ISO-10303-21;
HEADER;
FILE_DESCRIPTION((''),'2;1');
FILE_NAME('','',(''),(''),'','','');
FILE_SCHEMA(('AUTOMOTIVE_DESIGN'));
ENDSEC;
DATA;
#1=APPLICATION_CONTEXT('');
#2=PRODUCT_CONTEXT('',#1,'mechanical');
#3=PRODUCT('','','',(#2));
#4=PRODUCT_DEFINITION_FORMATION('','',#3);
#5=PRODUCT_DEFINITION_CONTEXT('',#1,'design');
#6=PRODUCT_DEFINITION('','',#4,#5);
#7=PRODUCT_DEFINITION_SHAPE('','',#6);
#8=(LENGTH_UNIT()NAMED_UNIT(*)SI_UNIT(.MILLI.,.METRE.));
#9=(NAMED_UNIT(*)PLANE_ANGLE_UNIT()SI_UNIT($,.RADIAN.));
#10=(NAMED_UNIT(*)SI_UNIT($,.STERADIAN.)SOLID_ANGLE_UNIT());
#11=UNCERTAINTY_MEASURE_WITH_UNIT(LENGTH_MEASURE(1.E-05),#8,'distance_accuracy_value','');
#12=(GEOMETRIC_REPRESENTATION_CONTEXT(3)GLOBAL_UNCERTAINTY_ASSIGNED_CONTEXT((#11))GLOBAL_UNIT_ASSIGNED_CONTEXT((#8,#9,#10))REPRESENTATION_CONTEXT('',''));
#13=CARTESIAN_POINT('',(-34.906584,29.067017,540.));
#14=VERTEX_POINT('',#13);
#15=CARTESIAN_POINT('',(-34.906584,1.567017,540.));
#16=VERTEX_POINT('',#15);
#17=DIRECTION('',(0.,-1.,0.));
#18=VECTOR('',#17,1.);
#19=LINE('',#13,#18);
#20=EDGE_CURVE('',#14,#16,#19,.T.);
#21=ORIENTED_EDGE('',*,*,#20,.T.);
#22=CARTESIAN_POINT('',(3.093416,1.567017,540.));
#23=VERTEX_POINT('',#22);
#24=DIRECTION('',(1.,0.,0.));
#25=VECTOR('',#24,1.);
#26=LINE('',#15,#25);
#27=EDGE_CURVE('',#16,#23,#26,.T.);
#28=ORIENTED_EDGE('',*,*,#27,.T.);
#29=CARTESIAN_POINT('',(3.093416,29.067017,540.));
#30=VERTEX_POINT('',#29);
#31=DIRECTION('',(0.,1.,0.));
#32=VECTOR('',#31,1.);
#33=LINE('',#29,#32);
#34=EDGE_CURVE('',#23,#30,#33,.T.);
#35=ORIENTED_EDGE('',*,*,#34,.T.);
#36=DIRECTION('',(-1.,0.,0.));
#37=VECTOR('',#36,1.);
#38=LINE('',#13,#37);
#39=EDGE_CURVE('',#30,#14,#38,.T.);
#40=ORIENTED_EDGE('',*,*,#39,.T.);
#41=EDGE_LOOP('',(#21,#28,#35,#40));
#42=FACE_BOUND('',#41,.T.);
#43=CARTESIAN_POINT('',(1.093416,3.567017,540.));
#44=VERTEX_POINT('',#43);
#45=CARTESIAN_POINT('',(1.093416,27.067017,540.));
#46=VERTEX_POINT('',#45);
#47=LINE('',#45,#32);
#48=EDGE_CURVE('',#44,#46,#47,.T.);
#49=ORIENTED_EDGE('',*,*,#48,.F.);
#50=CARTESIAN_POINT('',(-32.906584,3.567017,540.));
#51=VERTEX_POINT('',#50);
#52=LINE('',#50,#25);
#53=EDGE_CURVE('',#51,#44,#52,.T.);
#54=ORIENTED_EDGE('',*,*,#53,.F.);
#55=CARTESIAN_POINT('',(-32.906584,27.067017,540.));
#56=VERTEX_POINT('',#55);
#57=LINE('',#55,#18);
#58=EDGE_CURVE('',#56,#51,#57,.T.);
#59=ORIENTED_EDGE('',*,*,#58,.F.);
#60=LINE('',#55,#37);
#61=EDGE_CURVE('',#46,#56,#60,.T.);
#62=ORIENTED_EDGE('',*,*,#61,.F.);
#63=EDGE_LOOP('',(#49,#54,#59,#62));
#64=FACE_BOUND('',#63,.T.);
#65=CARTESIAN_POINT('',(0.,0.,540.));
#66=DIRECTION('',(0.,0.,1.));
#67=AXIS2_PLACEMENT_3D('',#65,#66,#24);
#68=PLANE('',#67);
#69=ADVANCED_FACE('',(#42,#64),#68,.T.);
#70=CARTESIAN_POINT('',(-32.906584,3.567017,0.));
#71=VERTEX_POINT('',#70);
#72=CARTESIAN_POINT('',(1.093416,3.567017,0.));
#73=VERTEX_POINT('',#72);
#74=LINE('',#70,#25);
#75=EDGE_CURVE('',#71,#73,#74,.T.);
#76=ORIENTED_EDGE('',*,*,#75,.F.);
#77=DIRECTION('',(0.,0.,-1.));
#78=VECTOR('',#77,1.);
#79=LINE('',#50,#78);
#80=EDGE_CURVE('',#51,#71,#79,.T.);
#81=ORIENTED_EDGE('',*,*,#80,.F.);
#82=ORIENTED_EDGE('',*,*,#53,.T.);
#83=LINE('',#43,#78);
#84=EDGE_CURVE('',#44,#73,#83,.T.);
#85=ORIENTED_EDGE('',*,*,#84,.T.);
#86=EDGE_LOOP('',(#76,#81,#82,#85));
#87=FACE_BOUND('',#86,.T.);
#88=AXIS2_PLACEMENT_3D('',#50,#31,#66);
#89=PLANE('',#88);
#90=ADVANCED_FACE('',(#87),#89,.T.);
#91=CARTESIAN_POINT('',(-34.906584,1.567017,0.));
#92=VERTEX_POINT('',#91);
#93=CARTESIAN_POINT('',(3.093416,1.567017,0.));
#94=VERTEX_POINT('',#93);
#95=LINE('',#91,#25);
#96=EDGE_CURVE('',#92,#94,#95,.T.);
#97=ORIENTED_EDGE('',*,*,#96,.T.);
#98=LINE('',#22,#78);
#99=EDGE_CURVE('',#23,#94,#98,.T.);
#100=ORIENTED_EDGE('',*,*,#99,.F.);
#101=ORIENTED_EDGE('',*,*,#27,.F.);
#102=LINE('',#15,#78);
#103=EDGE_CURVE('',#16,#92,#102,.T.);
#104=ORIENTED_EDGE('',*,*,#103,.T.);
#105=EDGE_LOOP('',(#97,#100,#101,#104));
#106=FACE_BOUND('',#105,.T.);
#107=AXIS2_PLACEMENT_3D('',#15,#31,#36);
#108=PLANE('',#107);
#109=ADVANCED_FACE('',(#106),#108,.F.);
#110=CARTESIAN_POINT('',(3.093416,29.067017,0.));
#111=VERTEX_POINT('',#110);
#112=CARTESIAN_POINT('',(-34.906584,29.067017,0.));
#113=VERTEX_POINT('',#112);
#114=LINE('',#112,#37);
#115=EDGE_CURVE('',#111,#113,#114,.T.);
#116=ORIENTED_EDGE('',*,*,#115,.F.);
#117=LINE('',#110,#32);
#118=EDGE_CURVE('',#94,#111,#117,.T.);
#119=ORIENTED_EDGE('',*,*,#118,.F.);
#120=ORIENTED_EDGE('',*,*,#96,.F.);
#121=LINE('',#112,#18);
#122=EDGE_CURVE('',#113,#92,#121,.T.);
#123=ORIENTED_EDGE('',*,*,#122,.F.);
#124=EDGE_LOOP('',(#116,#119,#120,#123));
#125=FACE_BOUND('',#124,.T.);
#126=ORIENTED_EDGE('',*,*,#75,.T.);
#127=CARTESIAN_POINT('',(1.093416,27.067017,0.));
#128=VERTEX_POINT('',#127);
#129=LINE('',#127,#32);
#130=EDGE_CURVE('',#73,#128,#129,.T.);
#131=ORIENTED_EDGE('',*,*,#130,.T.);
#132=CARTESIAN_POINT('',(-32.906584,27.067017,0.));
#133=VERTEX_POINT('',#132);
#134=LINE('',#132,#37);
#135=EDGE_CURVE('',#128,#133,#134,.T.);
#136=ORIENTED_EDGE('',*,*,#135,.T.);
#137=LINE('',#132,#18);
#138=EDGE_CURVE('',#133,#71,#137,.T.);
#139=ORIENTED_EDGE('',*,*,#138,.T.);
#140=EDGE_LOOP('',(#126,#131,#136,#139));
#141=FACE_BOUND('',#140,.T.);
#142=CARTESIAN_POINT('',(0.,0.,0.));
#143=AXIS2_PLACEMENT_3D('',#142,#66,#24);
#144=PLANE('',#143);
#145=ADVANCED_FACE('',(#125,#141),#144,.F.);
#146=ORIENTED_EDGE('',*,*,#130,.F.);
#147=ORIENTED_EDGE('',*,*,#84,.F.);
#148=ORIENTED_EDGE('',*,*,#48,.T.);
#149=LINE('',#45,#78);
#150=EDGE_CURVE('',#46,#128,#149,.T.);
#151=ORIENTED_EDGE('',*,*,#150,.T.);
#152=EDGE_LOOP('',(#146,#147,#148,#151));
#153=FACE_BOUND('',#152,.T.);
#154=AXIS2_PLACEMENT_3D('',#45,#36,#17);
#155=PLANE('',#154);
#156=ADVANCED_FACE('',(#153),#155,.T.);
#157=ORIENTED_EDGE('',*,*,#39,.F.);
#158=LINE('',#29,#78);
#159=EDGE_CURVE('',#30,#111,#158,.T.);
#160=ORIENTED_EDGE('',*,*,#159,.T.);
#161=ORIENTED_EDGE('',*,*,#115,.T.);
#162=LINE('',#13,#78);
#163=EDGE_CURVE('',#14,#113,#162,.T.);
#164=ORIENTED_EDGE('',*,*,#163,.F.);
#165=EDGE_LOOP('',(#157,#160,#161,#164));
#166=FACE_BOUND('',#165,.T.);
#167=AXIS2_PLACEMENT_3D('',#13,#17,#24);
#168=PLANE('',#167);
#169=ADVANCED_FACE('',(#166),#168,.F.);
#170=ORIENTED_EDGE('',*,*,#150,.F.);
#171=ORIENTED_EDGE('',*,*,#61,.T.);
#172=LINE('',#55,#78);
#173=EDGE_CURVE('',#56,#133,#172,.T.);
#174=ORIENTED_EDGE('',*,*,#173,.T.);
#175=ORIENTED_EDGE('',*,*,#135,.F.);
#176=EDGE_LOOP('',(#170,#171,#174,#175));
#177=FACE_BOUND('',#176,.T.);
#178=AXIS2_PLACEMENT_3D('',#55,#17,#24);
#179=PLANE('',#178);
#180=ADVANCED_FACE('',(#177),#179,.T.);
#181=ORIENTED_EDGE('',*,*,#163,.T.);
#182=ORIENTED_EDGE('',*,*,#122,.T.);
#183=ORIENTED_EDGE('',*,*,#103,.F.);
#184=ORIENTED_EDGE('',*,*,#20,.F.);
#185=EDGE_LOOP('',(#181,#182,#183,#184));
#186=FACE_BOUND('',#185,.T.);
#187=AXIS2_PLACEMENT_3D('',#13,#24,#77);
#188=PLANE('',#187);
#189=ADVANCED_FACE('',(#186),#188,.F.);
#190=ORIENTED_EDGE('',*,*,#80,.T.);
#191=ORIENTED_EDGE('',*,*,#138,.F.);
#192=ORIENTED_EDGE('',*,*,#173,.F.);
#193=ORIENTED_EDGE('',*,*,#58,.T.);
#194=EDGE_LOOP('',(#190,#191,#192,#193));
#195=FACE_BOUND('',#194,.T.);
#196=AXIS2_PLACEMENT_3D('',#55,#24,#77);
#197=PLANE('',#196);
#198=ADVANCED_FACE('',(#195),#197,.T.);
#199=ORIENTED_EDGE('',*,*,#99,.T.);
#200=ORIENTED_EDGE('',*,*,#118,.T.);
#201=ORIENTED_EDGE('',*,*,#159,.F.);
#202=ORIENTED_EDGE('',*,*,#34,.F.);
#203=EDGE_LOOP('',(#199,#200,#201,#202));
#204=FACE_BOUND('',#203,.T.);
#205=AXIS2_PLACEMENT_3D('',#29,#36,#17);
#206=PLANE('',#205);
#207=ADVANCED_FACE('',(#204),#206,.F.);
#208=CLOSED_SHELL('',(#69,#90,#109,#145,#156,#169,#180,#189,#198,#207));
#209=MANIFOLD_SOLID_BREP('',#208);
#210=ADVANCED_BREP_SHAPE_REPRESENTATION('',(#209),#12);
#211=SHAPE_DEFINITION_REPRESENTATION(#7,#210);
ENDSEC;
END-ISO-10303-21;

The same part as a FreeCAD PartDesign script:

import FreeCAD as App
import Part
import Sketcher
from FreeCAD import Vector

doc = App.newDocument("Part")
params = doc.addObject("Spreadsheet::Sheet", "Params")
for row, (alias, value) in enumerate([
    ("sketch1_width", "38 mm"),
    ("sketch1_width2", "34 mm"),
    ("sketch1_height", "27.5 mm"),
    ("sketch1_height2", "23.5 mm"),
    ("pad1_length", "540 mm"),
], start=1):
    params.set(f"A{row}", alias)
    params.set(f"B{row}", "=" + value)
    params.setAlias(f"B{row}", alias)

body = doc.addObject("PartDesign::Body", "Body")

# Sketch on XY plane
sketch1 = body.newObject("Sketcher::SketchObject", "Sketch")
sketch1.AttachmentSupport = (doc.getObject("XY_Plane"), [""])
sketch1.MapMode = "FlatFace"
sketch1.addGeometry(Part.LineSegment(Vector(-34.906584, 29.067017, 0), Vector(-34.906584, 1.567017, 0)), False)
sketch1.addGeometry(Part.LineSegment(Vector(-34.906584, 1.567017, 0), Vector(3.093416, 1.567017, 0)), False)
sketch1.addGeometry(Part.LineSegment(Vector(3.093416, 1.567017, 0), Vector(3.093416, 29.067017, 0)), False)
sketch1.addGeometry(Part.LineSegment(Vector(3.093416, 29.067017, 0), Vector(-34.906584, 29.067017, 0)), False)
sketch1.addGeometry(Part.LineSegment(Vector(1.093416, 3.567017, 0), Vector(-32.906584, 3.567017, 0)), False)
sketch1.addGeometry(Part.LineSegment(Vector(-32.906584, 3.567017, 0), Vector(-32.906584, 27.067017, 0)), False)
sketch1.addGeometry(Part.LineSegment(Vector(-32.906584, 27.067017, 0), Vector(1.093416, 27.067017, 0)), False)
sketch1.addGeometry(Part.LineSegment(Vector(1.093416, 27.067017, 0), Vector(1.093416, 3.567017, 0)), False)
sketch1.addConstraint(Sketcher.Constraint("Coincident", 0, 2, 1, 1))
sketch1.addConstraint(Sketcher.Constraint("Coincident", 1, 2, 2, 1))
sketch1.addConstraint(Sketcher.Constraint("Coincident", 2, 2, 3, 1))
sketch1.addConstraint(Sketcher.Constraint("Coincident", 3, 2, 0, 1))
sketch1.addConstraint(Sketcher.Constraint("Coincident", 4, 2, 5, 1))
sketch1.addConstraint(Sketcher.Constraint("Coincident", 5, 2, 6, 1))
sketch1.addConstraint(Sketcher.Constraint("Coincident", 6, 2, 7, 1))
sketch1.addConstraint(Sketcher.Constraint("Coincident", 7, 2, 4, 1))
sketch1.addConstraint(Sketcher.Constraint("Vertical", 0))
sketch1.addConstraint(Sketcher.Constraint("Horizontal", 1))
sketch1.addConstraint(Sketcher.Constraint("Vertical", 2))
sketch1.addConstraint(Sketcher.Constraint("Horizontal", 3))
sketch1.addConstraint(Sketcher.Constraint("Horizontal", 4))
sketch1.addConstraint(Sketcher.Constraint("Vertical", 5))
sketch1.addConstraint(Sketcher.Constraint("Horizontal", 6))
sketch1.addConstraint(Sketcher.Constraint("Vertical", 7))
sketch1.addConstraint(Sketcher.Constraint("DistanceX", 1, 1, 1, 2, 38.0))
sketch1.addConstraint(Sketcher.Constraint("DistanceX", 4, 2, 4, 1, 34.0))
sketch1.addConstraint(Sketcher.Constraint("DistanceY", 0, 2, 0, 1, 27.5))
sketch1.addConstraint(Sketcher.Constraint("DistanceY", 5, 1, 5, 2, 23.5))
sketch1.addConstraint(Sketcher.Constraint("DistanceX", 0, 2, 4, 2, 2.0))
sketch1.addConstraint(Sketcher.Constraint("DistanceY", 0, 2, 4, 2, 2.0))
sketch1.addConstraint(Sketcher.Constraint("DistanceX", 0, 2, -1, 1, 34.906584))
sketch1.addConstraint(Sketcher.Constraint("DistanceY", -1, 1, 0, 2, 1.567017))
sketch1.setExpression("Constraints[16]", "Params.sketch1_width")
sketch1.setExpression("Constraints[17]", "Params.sketch1_width2")
sketch1.setExpression("Constraints[18]", "Params.sketch1_height")
sketch1.setExpression("Constraints[19]", "Params.sketch1_height2")
pad1 = body.newObject("PartDesign::Pad", "Pad")
pad1.Profile = sketch1
pad1.setExpression("Length", "Params.pad1_length")

doc.recompute()
